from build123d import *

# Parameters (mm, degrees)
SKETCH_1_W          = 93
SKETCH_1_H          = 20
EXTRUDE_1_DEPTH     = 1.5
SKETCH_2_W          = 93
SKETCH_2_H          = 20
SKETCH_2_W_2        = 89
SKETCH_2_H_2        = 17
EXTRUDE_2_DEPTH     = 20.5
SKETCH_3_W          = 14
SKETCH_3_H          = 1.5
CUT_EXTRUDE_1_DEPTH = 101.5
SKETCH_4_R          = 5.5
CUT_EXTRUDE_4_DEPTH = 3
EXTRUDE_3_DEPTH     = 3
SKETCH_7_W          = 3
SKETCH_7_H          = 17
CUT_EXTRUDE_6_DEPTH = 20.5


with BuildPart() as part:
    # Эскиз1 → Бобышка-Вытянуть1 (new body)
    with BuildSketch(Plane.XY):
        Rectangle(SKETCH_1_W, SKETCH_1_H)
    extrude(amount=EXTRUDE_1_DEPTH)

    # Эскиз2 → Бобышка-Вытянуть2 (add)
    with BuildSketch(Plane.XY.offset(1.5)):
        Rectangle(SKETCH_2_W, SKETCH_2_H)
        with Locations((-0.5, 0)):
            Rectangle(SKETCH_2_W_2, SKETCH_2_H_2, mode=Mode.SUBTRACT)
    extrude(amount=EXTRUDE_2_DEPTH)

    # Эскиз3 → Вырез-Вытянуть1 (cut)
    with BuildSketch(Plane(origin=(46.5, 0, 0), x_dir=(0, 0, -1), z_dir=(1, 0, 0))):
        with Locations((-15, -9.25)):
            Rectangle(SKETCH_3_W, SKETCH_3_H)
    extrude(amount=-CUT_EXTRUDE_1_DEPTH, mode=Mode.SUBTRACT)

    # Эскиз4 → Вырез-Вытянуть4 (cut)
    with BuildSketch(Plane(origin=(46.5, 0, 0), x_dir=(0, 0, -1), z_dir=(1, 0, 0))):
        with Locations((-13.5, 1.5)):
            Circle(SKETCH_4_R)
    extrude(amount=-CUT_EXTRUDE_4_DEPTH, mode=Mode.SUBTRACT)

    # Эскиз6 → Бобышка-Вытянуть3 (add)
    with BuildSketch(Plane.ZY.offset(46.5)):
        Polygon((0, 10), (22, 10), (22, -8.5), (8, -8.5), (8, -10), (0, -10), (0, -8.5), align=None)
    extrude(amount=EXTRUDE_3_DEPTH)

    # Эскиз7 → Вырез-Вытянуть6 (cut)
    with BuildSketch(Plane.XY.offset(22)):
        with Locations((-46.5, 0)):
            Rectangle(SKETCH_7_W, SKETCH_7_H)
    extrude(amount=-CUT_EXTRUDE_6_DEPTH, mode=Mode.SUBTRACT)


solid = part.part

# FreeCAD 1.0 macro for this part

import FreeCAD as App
import Part
import Sketcher

V = App.Vector
Q = App.Units.Quantity

doc = App.newDocument("Part")
body = doc.addObject("PartDesign::Body", "Body")

# Sketch on XY plane
sketch1 = body.newObject("Sketcher::SketchObject", "Sketch")
sketch1.AttachmentSupport = (doc.getObject("XY_Plane"), [""])
sketch1.MapMode = "FlatFace"
sketch1.addGeometry(Part.LineSegment(V(-46, 10, 0), V(-46, -10, 0)), False)
sketch1.addGeometry(Part.LineSegment(V(-46, -10, 0), V(46, -10, 0)), False)
sketch1.addGeometry(Part.LineSegment(V(46, -10, 0), V(46, 10, 0)), False)
sketch1.addGeometry(Part.LineSegment(V(46, 10, 0), V(-46, 10, 0)), False)
sketch1.addConstraint(Sketcher.Constraint("Coincident", 0, 2, 1, 1))
sketch1.addConstraint(Sketcher.Constraint("Coincident", 1, 2, 2, 1))
sketch1.addConstraint(Sketcher.Constraint("Coincident", 2, 2, 3, 1))
sketch1.addConstraint(Sketcher.Constraint("Coincident", 3, 2, 0, 1))
sketch1.addConstraint(Sketcher.Constraint("Vertical", 0))
sketch1.addConstraint(Sketcher.Constraint("Horizontal", 1))
sketch1.addConstraint(Sketcher.Constraint("Vertical", 2))
sketch1.addConstraint(Sketcher.Constraint("Horizontal", 3))
sketch1.addConstraint(Sketcher.Constraint("Symmetric", 0, 2, 2, 2, -1, 1))
sketch1.addConstraint(Sketcher.Constraint("DistanceX", 1, 1, 1, 2, Q("93 mm")))
sketch1.addConstraint(Sketcher.Constraint("DistanceY", 0, 2, 0, 1, Q("20 mm")))
pad1 = body.newObject("PartDesign::Pad", "Pad")
pad1.Profile = sketch1
pad1.Length = 1.5

# Sketch on XY plane
sketch2 = body.newObject("Sketcher::SketchObject", "Sketch001")
sketch2.AttachmentSupport = (doc.getObject("XY_Plane"), [""])
sketch2.MapMode = "FlatFace"
sketch2.AttachmentOffset = App.Placement(V(0, 0, 1.5), App.Rotation())
sketch2.addGeometry(Part.LineSegment(V(-46, 10, 0), V(-46, -10, 0)), False)
sketch2.addGeometry(Part.LineSegment(V(-46, -10, 0), V(46, -10, 0)), False)
sketch2.addGeometry(Part.LineSegment(V(46, -10, 0), V(46, 10, 0)), False)
sketch2.addGeometry(Part.LineSegment(V(46, 10, 0), V(-46, 10, 0)), False)
sketch2.addGeometry(Part.LineSegment(V(44, -8, 0), V(-45, -8, 0)), False)
sketch2.addGeometry(Part.LineSegment(V(-45, -8, 0), V(-45, 8, 0)), False)
sketch2.addGeometry(Part.LineSegment(V(-45, 8, 0), V(44, 8, 0)), False)
sketch2.addGeometry(Part.LineSegment(V(44, 8, 0), V(44, -8, 0)), False)
sketch2.addConstraint(Sketcher.Constraint("Coincident", 0, 2, 1, 1))
sketch2.addConstraint(Sketcher.Constraint("Coincident", 1, 2, 2, 1))
sketch2.addConstraint(Sketcher.Constraint("Coincident", 2, 2, 3, 1))
sketch2.addConstraint(Sketcher.Constraint("Coincident", 3, 2, 0, 1))
sketch2.addConstraint(Sketcher.Constraint("Coincident", 4, 2, 5, 1))
sketch2.addConstraint(Sketcher.Constraint("Coincident", 5, 2, 6, 1))
sketch2.addConstraint(Sketcher.Constraint("Coincident", 6, 2, 7, 1))
sketch2.addConstraint(Sketcher.Constraint("Coincident", 7, 2, 4, 1))
sketch2.addConstraint(Sketcher.Constraint("Vertical", 0))
sketch2.addConstraint(Sketcher.Constraint("Horizontal", 1))
sketch2.addConstraint(Sketcher.Constraint("Vertical", 2))
sketch2.addConstraint(Sketcher.Constraint("Horizontal", 3))
sketch2.addConstraint(Sketcher.Constraint("Horizontal", 4))
sketch2.addConstraint(Sketcher.Constraint("Vertical", 5))
sketch2.addConstraint(Sketcher.Constraint("Horizontal", 6))
sketch2.addConstraint(Sketcher.Constraint("Vertical", 7))
sketch2.addConstraint(Sketcher.Constraint("Symmetric", 0, 2, 2, 2, -1, 1))
sketch2.addConstraint(Sketcher.Constraint("DistanceX", 1, 1, 1, 2, Q("93 mm")))
sketch2.addConstraint(Sketcher.Constraint("DistanceX", 4, 2, 4, 1, Q("89 mm")))
sketch2.addConstraint(Sketcher.Constraint("DistanceY", 0, 2, 0, 1, Q("20 mm")))
sketch2.addConstraint(Sketcher.Constraint("DistanceY", 5, 1, 5, 2, Q("17 mm")))
sketch2.addConstraint(Sketcher.Constraint("DistanceX", 4, 2, -1, 1, Q("45 mm")))
sketch2.addConstraint(Sketcher.Constraint("DistanceY", 4, 2, -1, 1, Q("8.5 mm")))
pad2 = body.newObject("PartDesign::Pad", "Pad001")
pad2.Profile = sketch2
pad2.Length = 20.5

# Sketch on YZ plane
sketch3 = body.newObject("Sketcher::SketchObject", "Sketch002")
sketch3.AttachmentSupport = (doc.getObject("YZ_Plane"), [""])
sketch3.MapMode = "FlatFace"
sketch3.AttachmentOffset = App.Placement(V(0, 0, 46.5), App.Rotation())
sketch3.addGeometry(Part.LineSegment(V(-8.5, 22, 0), V(-10, 22, 0)), False)
sketch3.addGeometry(Part.LineSegment(V(-10, 22, 0), V(-10, 8, 0)), False)
sketch3.addGeometry(Part.LineSegment(V(-10, 8, 0), V(-8.5, 8, 0)), False)
sketch3.addGeometry(Part.LineSegment(V(-8.5, 8, 0), V(-8.5, 22, 0)), False)
sketch3.addConstraint(Sketcher.Constraint("Coincident", 0, 2, 1, 1))
sketch3.addConstraint(Sketcher.Constraint("Coincident", 1, 2, 2, 1))
sketch3.addConstraint(Sketcher.Constraint("Coincident", 2, 2, 3, 1))
sketch3.addConstraint(Sketcher.Constraint("Coincident", 3, 2, 0, 1))
sketch3.addConstraint(Sketcher.Constraint("Horizontal", 0))
sketch3.addConstraint(Sketcher.Constraint("Vertical", 1))
sketch3.addConstraint(Sketcher.Constraint("Horizontal", 2))
sketch3.addConstraint(Sketcher.Constraint("Vertical", 3))
sketch3.addConstraint(Sketcher.Constraint("DistanceY", 1, 2, 1, 1, Q("14 mm")))
sketch3.addConstraint(Sketcher.Constraint("DistanceX", 0, 2, 0, 1, Q("1.5 mm")))
sketch3.addConstraint(Sketcher.Constraint("DistanceX", 0, 2, -1, 1, Q("10 mm")))
sketch3.addConstraint(Sketcher.Constraint("DistanceY", -1, 1, 0, 2, Q("22 mm")))
pocket1 = body.newObject("PartDesign::Pocket", "Pocket")
pocket1.Profile = sketch3
pocket1.Length = 101.5

# Sketch on YZ plane
sketch4 = body.newObject("Sketcher::SketchObject", "Sketch003")
sketch4.AttachmentSupport = (doc.getObject("YZ_Plane"), [""])
sketch4.MapMode = "FlatFace"
sketch4.AttachmentOffset = App.Placement(V(0, 0, 46.5), App.Rotation())
sketch4.addGeometry(Part.Circle(V(2, 14, 0), V(0, 0, 1), 6), False)
sketch4.addConstraint(Sketcher.Constraint("Diameter", 0, Q("11 mm")))
sketch4.addConstraint(Sketcher.Constraint("DistanceX", -1, 1, 0, 3, Q("1.5 mm")))
sketch4.addConstraint(Sketcher.Constraint("DistanceY", -1, 1, 0, 3, Q("13.5 mm")))
pocket2 = body.newObject("PartDesign::Pocket", "Pocket001")
pocket2.Profile = sketch4
pocket2.Length = 3

# Sketch on YZ plane
sketch5 = body.newObject("Sketcher::SketchObject", "Sketch004")
sketch5.AttachmentSupport = (doc.getObject("YZ_Plane"), [""])
sketch5.MapMode = "FlatFace"
sketch5.AttachmentOffset = App.Placement(V(0, 0, -46.5), App.Rotation())
sketch5.addGeometry(Part.LineSegment(V(10, 22, 0), V(10, 0, 0)), False)
sketch5.addGeometry(Part.LineSegment(V(10, 0, 0), V(-10, 0, 0)), False)
sketch5.addGeometry(Part.LineSegment(V(-10, 0, 0), V(-10, 8, 0)), False)
sketch5.addGeometry(Part.LineSegment(V(-10, 8, 0), V(-8.5, 8, 0)), False)
sketch5.addGeometry(Part.LineSegment(V(-8.5, 8, 0), V(-8.5, 22, 0)), False)
sketch5.addGeometry(Part.LineSegment(V(-8.5, 22, 0), V(10, 22, 0)), False)
sketch5.addConstraint(Sketcher.Constraint("Coincident", 0, 2, 1, 1))
sketch5.addConstraint(Sketcher.Constraint("Coincident", 1, 2, 2, 1))
sketch5.addConstraint(Sketcher.Constraint("Coincident", 2, 2, 3, 1))
sketch5.addConstraint(Sketcher.Constraint("Coincident", 3, 2, 4, 1))
sketch5.addConstraint(Sketcher.Constraint("Coincident", 4, 2, 5, 1))
sketch5.addConstraint(Sketcher.Constraint("Coincident", 5, 2, 0, 1))
sketch5.addConstraint(Sketcher.Constraint("Vertical", 0))
sketch5.addConstraint(Sketcher.Constraint("Horizontal", 1))
sketch5.addConstraint(Sketcher.Constraint("Vertical", 2))
sketch5.addConstraint(Sketcher.Constraint("Horizontal", 3))
sketch5.addConstraint(Sketcher.Constraint("Vertical", 4))
sketch5.addConstraint(Sketcher.Constraint("Horizontal", 5))
sketch5.addConstraint(Sketcher.Constraint("Symmetric", 0, 2, 1, 2, -1, 1))
sketch5.addConstraint(Sketcher.Constraint("DistanceX", 1, 2, 1, 1, Q("20 mm")))
sketch5.addConstraint(Sketcher.Constraint("DistanceY", 0, 2, 0, 1, Q("22 mm")))
sketch5.addConstraint(Sketcher.Constraint("DistanceY", 2, 1, 2, 2, Q("8 mm")))
sketch5.addConstraint(Sketcher.Constraint("DistanceX", 3, 1, 3, 2, Q("1.5 mm")))
pad3 = body.newObject("PartDesign::Pad", "Pad002")
pad3.Profile = sketch5
pad3.Length = 3
pad3.Reversed = True

# Sketch on XY plane
sketch6 = body.newObject("Sketcher::SketchObject", "Sketch005")
sketch6.AttachmentSupport = (doc.getObject("XY_Plane"), [""])
sketch6.MapMode = "FlatFace"
sketch6.AttachmentOffset = App.Placement(V(0, 0, 22), App.Rotation())
sketch6.addGeometry(Part.LineSegment(V(-48, 8.5, 0), V(-48, -8.5, 0)), False)
sketch6.addGeometry(Part.LineSegment(V(-48, -8.5, 0), V(-45, -8.5, 0)), False)
sketch6.addGeometry(Part.LineSegment(V(-45, -8.5, 0), V(-45, 8.5, 0)), False)
sketch6.addGeometry(Part.LineSegment(V(-45, 8.5, 0), V(-48, 8.5, 0)), False)
sketch6.addConstraint(Sketcher.Constraint("Coincident", 0, 2, 1, 1))
sketch6.addConstraint(Sketcher.Constraint("Coincident", 1, 2, 2, 1))
sketch6.addConstraint(Sketcher.Constraint("Coincident", 2, 2, 3, 1))
sketch6.addConstraint(Sketcher.Constraint("Coincident", 3, 2, 0, 1))
sketch6.addConstraint(Sketcher.Constraint("Vertical", 0))
sketch6.addConstraint(Sketcher.Constraint("Horizontal", 1))
sketch6.addConstraint(Sketcher.Constraint("Vertical", 2))
sketch6.addConstraint(Sketcher.Constraint("Horizontal", 3))
sketch6.addConstraint(Sketcher.Constraint("DistanceX", 1, 1, 1, 2, Q("3 mm")))
sketch6.addConstraint(Sketcher.Constraint("DistanceY", 0, 2, 0, 1, Q("17 mm")))
sketch6.addConstraint(Sketcher.Constraint("DistanceX", 0, 2, -1, 1, Q("48 mm")))
sketch6.addConstraint(Sketcher.Constraint("DistanceY", 0, 2, -1, 1, Q("8.5 mm")))
pocket3 = body.newObject("PartDesign::Pocket", "Pocket002")
pocket3.Profile = sketch6
pocket3.Length = 20.5

doc.recompute()
